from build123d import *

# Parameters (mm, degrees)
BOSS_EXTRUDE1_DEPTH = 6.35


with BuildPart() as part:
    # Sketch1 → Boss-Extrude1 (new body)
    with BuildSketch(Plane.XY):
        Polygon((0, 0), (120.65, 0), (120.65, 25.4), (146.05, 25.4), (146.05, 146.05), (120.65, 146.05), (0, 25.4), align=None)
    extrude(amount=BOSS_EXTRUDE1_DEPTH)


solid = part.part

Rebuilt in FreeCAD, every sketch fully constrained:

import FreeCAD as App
import Part
import Sketcher
Q = App.Units.Quantity

doc = App.newDocument("Part")
params = doc.addObject("Spreadsheet::Sheet", "Params")
for row, (alias, value) in enumerate([
    ("sketch1_width", "1 in"),
    ("sketch1_width2", "4.75 in"),
    ("pad1_length", "0.25 in"),
], start=1):
    params.set(f"A{row}", alias)
    params.set(f"B{row}", "=" + value)
    params.setAlias(f"B{row}", alias)

body = doc.addObject("PartDesign::Body", "Body")

# Sketch on XY plane
sketch1 = doc.addObject("Sketcher::SketchObject", "Sketch")
body.addObject(sketch1)
sketch1.AttachmentSupport = (doc.XY_Plane, [""])
sketch1.MapMode = "FlatFace"
sketch1.addGeometry([
    Part.LineSegment(App.Vector(0, 0, 0), App.Vector(120.65, 0, 0)),  # 0
    Part.LineSegment(App.Vector(120.65, 0, 0), App.Vector(120.65, 25.4, 0)),  # 1
    Part.LineSegment(App.Vector(120.65, 25.4, 0), App.Vector(146.05, 25.4, 0)),  # 2
    Part.LineSegment(App.Vector(146.05, 25.4, 0), App.Vector(146.05, 146.05, 0)),  # 3
    Part.LineSegment(App.Vector(146.05, 146.05, 0), App.Vector(120.65, 146.05, 0)),  # 4
    Part.LineSegment(App.Vector(120.65, 146.05, 0), App.Vector(0, 25.4, 0)),  # 5
    Part.LineSegment(App.Vector(0, 25.4, 0), App.Vector(0, 0, 0)),  # 6
], False)
sketch1.addConstraint([
    Sketcher.Constraint("Coincident", 0, 2, 1, 1),
    Sketcher.Constraint("Coincident", 1, 2, 2, 1),
    Sketcher.Constraint("Coincident", 2, 2, 3, 1),
    Sketcher.Constraint("Coincident", 3, 2, 4, 1),
    Sketcher.Constraint("Coincident", 4, 2, 5, 1),
    Sketcher.Constraint("Coincident", 5, 2, 6, 1),
    Sketcher.Constraint("Coincident", 6, 2, 0, 1),
    Sketcher.Constraint("Horizontal", 0),
    Sketcher.Constraint("Vertical", 1),
    Sketcher.Constraint("Horizontal", 2),
    Sketcher.Constraint("Vertical", 3),
    Sketcher.Constraint("Horizontal", 4),
    Sketcher.Constraint("Vertical", 6),
    Sketcher.Constraint("Coincident", 6, 2, -1, 1),
    Sketcher.Constraint("Horizontal", 2, 2, 5, 2),
    Sketcher.Constraint("Vertical", 1, 2, 4, 2),
    Sketcher.Constraint("Equal", 4, 1),
    Sketcher.Constraint("Equal", 0, 3),
    Sketcher.Constraint("DistanceX", 2, 1, 2, 2, Q("1 in")),
    Sketcher.Constraint("DistanceX", 0, 1, 0, 2, Q("4.75 in")),
])
sketch1.setExpression("Constraints[18]", "Params.sketch1_width")
sketch1.setExpression("Constraints[19]", "Params.sketch1_width2")
pad1 = doc.addObject("PartDesign::Pad", "Pad")
body.addObject(pad1)
pad1.Profile = sketch1
pad1.setExpression("Length", "Params.pad1_length")

doc.recompute()
